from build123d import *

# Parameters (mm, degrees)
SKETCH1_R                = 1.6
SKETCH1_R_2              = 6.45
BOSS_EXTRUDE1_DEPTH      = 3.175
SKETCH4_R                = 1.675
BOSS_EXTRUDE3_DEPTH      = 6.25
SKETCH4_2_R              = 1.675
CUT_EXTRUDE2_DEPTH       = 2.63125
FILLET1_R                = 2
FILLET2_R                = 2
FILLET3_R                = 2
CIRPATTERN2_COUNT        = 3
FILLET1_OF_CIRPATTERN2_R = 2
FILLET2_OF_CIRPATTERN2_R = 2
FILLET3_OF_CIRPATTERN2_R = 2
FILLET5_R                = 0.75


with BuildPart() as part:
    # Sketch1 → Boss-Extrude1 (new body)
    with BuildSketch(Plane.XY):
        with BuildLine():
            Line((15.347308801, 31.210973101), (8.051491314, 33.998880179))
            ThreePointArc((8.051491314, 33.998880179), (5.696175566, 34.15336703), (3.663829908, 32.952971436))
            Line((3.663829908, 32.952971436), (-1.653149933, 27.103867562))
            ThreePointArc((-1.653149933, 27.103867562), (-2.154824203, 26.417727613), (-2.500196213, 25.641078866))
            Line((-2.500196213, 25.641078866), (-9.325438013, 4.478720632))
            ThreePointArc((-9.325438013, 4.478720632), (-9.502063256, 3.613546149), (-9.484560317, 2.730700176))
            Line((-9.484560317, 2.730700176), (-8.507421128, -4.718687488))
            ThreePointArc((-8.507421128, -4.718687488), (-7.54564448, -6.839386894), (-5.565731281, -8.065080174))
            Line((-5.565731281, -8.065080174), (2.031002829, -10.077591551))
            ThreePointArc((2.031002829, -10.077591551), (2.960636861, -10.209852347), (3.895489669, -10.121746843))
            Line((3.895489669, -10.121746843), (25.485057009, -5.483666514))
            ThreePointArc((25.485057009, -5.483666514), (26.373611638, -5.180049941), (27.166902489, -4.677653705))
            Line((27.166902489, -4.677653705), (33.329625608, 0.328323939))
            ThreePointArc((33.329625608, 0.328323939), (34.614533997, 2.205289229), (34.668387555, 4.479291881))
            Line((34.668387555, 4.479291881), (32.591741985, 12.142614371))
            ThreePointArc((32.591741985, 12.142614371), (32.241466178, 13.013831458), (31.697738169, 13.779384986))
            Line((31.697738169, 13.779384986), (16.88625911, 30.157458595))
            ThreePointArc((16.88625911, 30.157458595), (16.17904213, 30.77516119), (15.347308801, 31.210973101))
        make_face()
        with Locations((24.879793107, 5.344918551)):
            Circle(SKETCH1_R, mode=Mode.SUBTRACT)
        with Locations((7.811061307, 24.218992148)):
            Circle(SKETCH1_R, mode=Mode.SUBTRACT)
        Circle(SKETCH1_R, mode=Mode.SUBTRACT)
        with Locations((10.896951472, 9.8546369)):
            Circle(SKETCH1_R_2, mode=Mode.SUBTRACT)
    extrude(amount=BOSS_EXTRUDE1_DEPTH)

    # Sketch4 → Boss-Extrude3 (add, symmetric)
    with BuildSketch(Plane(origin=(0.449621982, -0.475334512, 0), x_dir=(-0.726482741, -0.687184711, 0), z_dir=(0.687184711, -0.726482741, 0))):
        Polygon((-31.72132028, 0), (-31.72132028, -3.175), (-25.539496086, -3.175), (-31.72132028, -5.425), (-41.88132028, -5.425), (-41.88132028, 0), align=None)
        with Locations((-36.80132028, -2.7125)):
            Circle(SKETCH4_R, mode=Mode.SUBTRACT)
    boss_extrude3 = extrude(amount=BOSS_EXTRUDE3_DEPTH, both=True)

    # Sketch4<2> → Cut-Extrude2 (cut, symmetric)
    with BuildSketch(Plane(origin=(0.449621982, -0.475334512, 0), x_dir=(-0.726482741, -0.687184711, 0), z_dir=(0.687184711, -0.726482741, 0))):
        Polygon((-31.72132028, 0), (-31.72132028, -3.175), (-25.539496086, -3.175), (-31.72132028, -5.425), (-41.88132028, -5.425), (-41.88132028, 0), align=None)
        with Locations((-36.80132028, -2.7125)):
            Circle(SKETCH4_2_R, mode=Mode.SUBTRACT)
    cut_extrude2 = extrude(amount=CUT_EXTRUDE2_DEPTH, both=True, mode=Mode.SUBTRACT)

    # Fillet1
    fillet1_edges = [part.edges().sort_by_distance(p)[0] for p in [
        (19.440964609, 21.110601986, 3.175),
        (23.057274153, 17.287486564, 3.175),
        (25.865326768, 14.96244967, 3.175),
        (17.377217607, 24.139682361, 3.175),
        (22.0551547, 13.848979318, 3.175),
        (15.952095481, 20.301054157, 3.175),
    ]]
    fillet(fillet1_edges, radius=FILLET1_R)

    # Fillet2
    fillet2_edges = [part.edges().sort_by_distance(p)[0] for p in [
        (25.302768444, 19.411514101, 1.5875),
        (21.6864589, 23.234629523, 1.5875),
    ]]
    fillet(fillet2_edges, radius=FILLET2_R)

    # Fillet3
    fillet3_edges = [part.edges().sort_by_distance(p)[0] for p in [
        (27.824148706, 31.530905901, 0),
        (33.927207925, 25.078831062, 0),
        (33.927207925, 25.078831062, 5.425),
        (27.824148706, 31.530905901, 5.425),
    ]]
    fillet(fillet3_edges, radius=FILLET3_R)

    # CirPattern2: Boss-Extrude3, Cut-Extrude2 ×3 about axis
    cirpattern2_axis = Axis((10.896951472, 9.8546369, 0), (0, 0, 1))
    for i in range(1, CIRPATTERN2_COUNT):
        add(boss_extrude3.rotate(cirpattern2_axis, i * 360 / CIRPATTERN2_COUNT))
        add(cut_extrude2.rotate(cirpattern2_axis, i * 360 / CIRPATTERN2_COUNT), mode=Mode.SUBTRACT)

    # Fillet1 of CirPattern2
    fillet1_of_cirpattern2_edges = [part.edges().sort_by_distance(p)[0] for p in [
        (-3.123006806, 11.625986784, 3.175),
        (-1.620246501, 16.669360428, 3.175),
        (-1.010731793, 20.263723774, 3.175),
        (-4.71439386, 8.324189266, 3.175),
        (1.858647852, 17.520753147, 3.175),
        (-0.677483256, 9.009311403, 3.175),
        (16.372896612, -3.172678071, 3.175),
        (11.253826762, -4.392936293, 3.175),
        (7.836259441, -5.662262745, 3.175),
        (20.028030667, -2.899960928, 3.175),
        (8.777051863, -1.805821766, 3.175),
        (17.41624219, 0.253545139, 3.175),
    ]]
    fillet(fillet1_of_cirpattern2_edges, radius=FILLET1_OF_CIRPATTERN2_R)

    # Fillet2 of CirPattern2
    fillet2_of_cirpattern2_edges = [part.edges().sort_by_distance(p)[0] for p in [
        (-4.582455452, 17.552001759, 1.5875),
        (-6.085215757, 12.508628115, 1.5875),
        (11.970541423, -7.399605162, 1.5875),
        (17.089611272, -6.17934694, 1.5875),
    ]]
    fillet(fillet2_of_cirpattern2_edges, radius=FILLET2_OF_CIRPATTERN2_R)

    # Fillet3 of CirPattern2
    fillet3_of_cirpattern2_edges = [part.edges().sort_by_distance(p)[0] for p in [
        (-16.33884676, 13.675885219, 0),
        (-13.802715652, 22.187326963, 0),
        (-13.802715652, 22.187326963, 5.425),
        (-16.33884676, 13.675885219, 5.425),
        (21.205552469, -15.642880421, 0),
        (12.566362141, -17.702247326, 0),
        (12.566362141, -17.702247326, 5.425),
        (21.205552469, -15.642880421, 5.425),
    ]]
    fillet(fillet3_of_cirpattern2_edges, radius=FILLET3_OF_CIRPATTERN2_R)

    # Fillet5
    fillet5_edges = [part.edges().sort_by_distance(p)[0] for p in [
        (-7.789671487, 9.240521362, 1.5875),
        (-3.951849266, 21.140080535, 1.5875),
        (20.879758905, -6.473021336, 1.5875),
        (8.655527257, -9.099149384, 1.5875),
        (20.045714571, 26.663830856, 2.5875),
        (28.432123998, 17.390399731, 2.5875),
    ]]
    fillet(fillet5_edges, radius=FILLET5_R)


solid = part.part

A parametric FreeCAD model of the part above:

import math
import FreeCAD as App
import Part
import Sketcher
Q = App.Units.Quantity


def edges_at(feature, points):
    """Names of the edges that pass closest to the given points."""
    edges = feature.Shape.Edges
    near = lambda p: min(range(len(edges)), key=lambda i: edges[i].distToShape(Part.Vertex(*p))[0])
    return sorted({f"Edge{near(p) + 1}" for p in points})


def add_polygon(sketch, points):
    """Adds a closed chain of lines whose ends are joined by coincident constraints."""
    first, n = sketch.GeometryCount, len(points)
    for a, b in zip(points, points[1:] + points[:1]):
        sketch.addGeometry(Part.LineSegment(App.Vector(*a, 0), App.Vector(*b, 0)), False)
    for i in range(n):
        sketch.addConstraint(Sketcher.Constraint("Coincident", first + i, 2, first + (i + 1) % n, 1))

doc = App.newDocument("Part")
body = doc.addObject("PartDesign::Body", "Body")

# Sketch on XY plane
sketch1 = body.newObject("Sketcher::SketchObject", "Sketch")
sketch1.AttachmentSupport = (doc.getObject("XY_Plane"), [""])
sketch1.MapMode = "FlatFace"
sketch1.addGeometry(Part.LineSegment(App.Vector(15.347309, 31.210973, 0), App.Vector(8.051491, 33.99888, 0)), False)
sketch1.addGeometry(Part.ArcOfCircle(Part.Circle(App.Vector(6.623688, 30.262388, 0), App.Vector(0, 0, 1), 4), math.radians(69.086943), math.radians(137.728388)), False)
sketch1.addGeometry(Part.LineSegment(App.Vector(3.66383, 32.952971, 0), App.Vector(-1.65315, 27.103868, 0)), False)
sketch1.addGeometry(Part.ArcOfCircle(Part.Circle(App.Vector(1.306708, 24.413284, 0), App.Vector(0, 0, 1), 4), math.radians(137.728388), math.radians(162.124554)), False)
sketch1.addGeometry(Part.LineSegment(App.Vector(-2.500196, 25.641079, 0), App.Vector(-9.325438, 4.478721, 0)), False)
sketch1.addGeometry(Part.ArcOfCircle(Part.Circle(App.Vector(-5.518534, 3.250925, 0), App.Vector(0, 0, 1), 4), math.radians(162.124554), math.radians(187.472847)), False)
sketch1.addGeometry(Part.LineSegment(App.Vector(-9.48456, 2.7307, 0), App.Vector(-8.507421, -4.718687, 0)), False)
sketch1.addGeometry(Part.ArcOfCircle(Part.Circle(App.Vector(-4.541395, -4.198462, 0), App.Vector(0, 0, 1), 4), math.radians(-172.527153), math.radians(-104.837835)), False)
sketch1.addGeometry(Part.LineSegment(App.Vector(-5.565731, -8.06508, 0), App.Vector(2.031003, -10.077592, 0)), False)
sketch1.addGeometry(Part.ArcOfCircle(Part.Circle(App.Vector(3.055339, -6.210974, 0), App.Vector(0, 0, 1), 4), math.radians(-104.837835), math.radians(-77.875446)), False)
sketch1.addGeometry(Part.LineSegment(App.Vector(3.89549, -10.121747, 0), App.Vector(25.485057, -5.483667, 0)), False)
sketch1.addGeometry(Part.ArcOfCircle(Part.Circle(App.Vector(24.644907, -1.572893, 0), App.Vector(0, 0, 1), 4), math.radians(-77.875446), math.radians(-50.913057)), False)
sketch1.addGeometry(Part.LineSegment(App.Vector(27.166902, -4.677654, 0), App.Vector(33.329626, 0.328324, 0)), False)
sketch1.addGeometry(Part.ArcOfCircle(Part.Circle(App.Vector(30.80763, 3.433084, 0), App.Vector(0, 0, 1), 4), math.radians(-50.913057), math.radians(15.162165)), False)
sketch1.addGeometry(Part.LineSegment(App.Vector(34.668388, 4.479292, 0), App.Vector(32.591742, 12.142614, 0)), False)
sketch1.addGeometry(Part.ArcOfCircle(Part.Circle(App.Vector(28.730984, 11.096407, 0), App.Vector(0, 0, 1), 4), math.radians(15.162165), math.radians(42.124554)), False)
sketch1.addGeometry(Part.LineSegment(App.Vector(31.697738, 13.779385, 0), App.Vector(16.886259, 30.157459, 0)), False)
sketch1.addGeometry(Part.ArcOfCircle(Part.Circle(App.Vector(13.919505, 27.47448, 0), App.Vector(0, 0, 1), 4), math.radians(42.124554), math.radians(69.086943)), False)
sketch1.addGeometry(Part.Circle(App.Vector(0, 0, 0), App.Vector(0, 0, 1), 1.6), False)
sketch1.addGeometry(Part.Circle(App.Vector(10.896951, 9.854637, 0), App.Vector(0, 0, 1), 6.45), False)
sketch1.addGeometry(Part.Circle(App.Vector(24.879793, 5.344919, 0), App.Vector(0, 0, 1), 1.6), False)
sketch1.addGeometry(Part.Circle(App.Vector(7.811061, 24.218992, 0), App.Vector(0, 0, 1), 1.6), False)
sketch1.addConstraint(Sketcher.Constraint("Coincident", 0, 2, 1, 1))
sketch1.addConstraint(Sketcher.Constraint("Coincident", 1, 2, 2, 1))
sketch1.addConstraint(Sketcher.Constraint("Coincident", 2, 2, 3, 1))
sketch1.addConstraint(Sketcher.Constraint("Coincident", 3, 2, 4, 1))
sketch1.addConstraint(Sketcher.Constraint("Coincident", 4, 2, 5, 1))
sketch1.addConstraint(Sketcher.Constraint("Coincident", 5, 2, 6, 1))
sketch1.addConstraint(Sketcher.Constraint("Coincident", 6, 2, 7, 1))
sketch1.addConstraint(Sketcher.Constraint("Coincident", 7, 2, 8, 1))
sketch1.addConstraint(Sketcher.Constraint("Coincident", 8, 2, 9, 1))
sketch1.addConstraint(Sketcher.Constraint("Coincident", 9, 2, 10, 1))
sketch1.addConstraint(Sketcher.Constraint("Coincident", 10, 2, 11, 1))
sketch1.addConstraint(Sketcher.Constraint("Coincident", 11, 2, 12, 1))
sketch1.addConstraint(Sketcher.Constraint("Coincident", 12, 2, 13, 1))
sketch1.addConstraint(Sketcher.Constraint("Coincident", 13, 2, 14, 1))
sketch1.addConstraint(Sketcher.Constraint("Coincident", 14, 2, 15, 1))
sketch1.addConstraint(Sketcher.Constraint("Coincident", 15, 2, 16, 1))
sketch1.addConstraint(Sketcher.Constraint("Coincident", 16, 2, 17, 1))
sketch1.addConstraint(Sketcher.Constraint("Coincident", 17, 2, 0, 1))
sketch1.addConstraint(Sketcher.Constraint("Coincident", 18, 3, -1, 1))
sketch1.addConstraint(Sketcher.Constraint("Radius", 1, Q("4 mm")))
sketch1.addConstraint(Sketcher.Constraint("Radius", 3, Q("4 mm")))
sketch1.addConstraint(Sketcher.Constraint("Radius", 5, Q("4 mm")))
sketch1.addConstraint(Sketcher.Constraint("Radius", 7, Q("4 mm")))
sketch1.addConstraint(Sketcher.Constraint("Radius", 9, Q("4 mm")))
sketch1.addConstraint(Sketcher.Constraint("Radius", 11, Q("4 mm")))
sketch1.addConstraint(Sketcher.Constraint("Radius", 13, Q("4 mm")))
sketch1.addConstraint(Sketcher.Constraint("Radius", 15, Q("4 mm")))
sketch1.addConstraint(Sketcher.Constraint("Radius", 17, Q("4 mm")))
sketch1.addConstraint(Sketcher.Constraint("Diameter", 18, Q("3.2 mm")))
sketch1.addConstraint(Sketcher.Constraint("Diameter", 19, Q("12.9 mm")))
sketch1.addConstraint(Sketcher.Constraint("Diameter", 20, Q("3.2 mm")))
sketch1.addConstraint(Sketcher.Constraint("Diameter", 21, Q("3.2 mm")))
sketch1.addConstraint(Sketcher.Constraint("Distance", 6, Q("7.5132 mm")))
sketch1.addConstraint(Sketcher.Constraint("DistanceY", -1, 1, 5, 2, Q("2.7307 mm")))
sketch1.addConstraint(Sketcher.Constraint("DistanceY", 9, 3, 5, 3, Q("9.461899 mm")))
sketch1.addConstraint(Sketcher.Constraint("DistanceX", 7, 3, 11, 3, Q("29.186301 mm")))
sketch1.addConstraint(Sketcher.Constraint("DistanceX", 3, 3, 11, 3, Q("23.338199 mm")))
sketch1.addConstraint(Sketcher.Constraint("DistanceY", 13, 3, 3, 3, Q("20.980199 mm")))
sketch1.addConstraint(Sketcher.Constraint("DistanceY", 11, 3, 15, 3, Q("12.6693 mm")))
sketch1.addConstraint(Sketcher.Constraint("DistanceX", 17, 3, 11, 3, Q("10.725402 mm")))
sketch1.addConstraint(Sketcher.Constraint("DistanceY", 17, 3, 0, 2, Q("6.5244 mm")))
sketch1.addConstraint(Sketcher.Constraint("DistanceX", 5, 2, 9, 3, Q("12.5399 mm")))
sketch1.addConstraint(Sketcher.Constraint("DistanceY", 13, 3, 15, 2, Q("10.346301 mm")))
sketch1.addConstraint(Sketcher.Constraint("Distance", 8, Q("7.858789 mm")))
sketch1.addConstraint(Sketcher.Constraint("Distance", 12, Q("7.939708 mm")))
sketch1.addConstraint(Sketcher.Constraint("Distance", 14, Q("7.939708 mm")))
sketch1.addConstraint(Sketcher.Constraint("DistanceX", -1, 1, 9, 3, Q("3.055339 mm")))
sketch1.addConstraint(Sketcher.Constraint("DistanceX", -1, 1, 13, 3, Q("30.80763 mm")))
sketch1.addConstraint(Sketcher.Constraint("DistanceY", -1, 1, 17, 3, Q("27.47448 mm")))
sketch1.addConstraint(Sketcher.Constraint("DistanceX", -1, 1, 19, 3, Q("10.896951 mm")))
sketch1.addConstraint(Sketcher.Constraint("DistanceY", -1, 1, 20, 3, Q("5.344919 mm")))
sketch1.addConstraint(Sketcher.Constraint("DistanceX", -1, 1, 21, 3, Q("7.811061 mm")))
sketch1.addConstraint(Sketcher.Constraint("DistanceX", -1, 1, 0, 2, Q("8.051491 mm")))
sketch1.addConstraint(Sketcher.Constraint("DistanceX", -1, 1, 1, 2, Q("3.66383 mm")))
sketch1.addConstraint(Sketcher.Constraint("DistanceY", -1, 1, 1, 2, Q("32.952971 mm")))
sketch1.addConstraint(Sketcher.Constraint("DistanceX", 2, 2, -1, 1, Q("1.65315 mm")))
sketch1.addConstraint(Sketcher.Constraint("DistanceY", -1, 1, 3, 2, Q("25.641079 mm")))
sketch1.addConstraint(Sketcher.Constraint("DistanceX", 4, 2, -1, 1, Q("9.325438 mm")))
sketch1.addConstraint(Sketcher.Constraint("DistanceY", -1, 1, 4, 2, Q("4.478721 mm")))
sketch1.addConstraint(Sketcher.Constraint("DistanceX", 6, 2, -1, 1, Q("8.507421 mm")))
sketch1.addConstraint(Sketcher.Constraint("DistanceX", 7, 2, -1, 1, Q("5.565731 mm")))
sketch1.addConstraint(Sketcher.Constraint("DistanceY", 7, 2, -1, 1, Q("8.06508 mm")))
sketch1.addConstraint(Sketcher.Constraint("DistanceX", -1, 1, 9, 2, Q("3.89549 mm")))
sketch1.addConstraint(Sketcher.Constraint("DistanceY", -1, 1, 13, 2, Q("4.479292 mm")))
sketch1.addConstraint(Sketcher.Constraint("DistanceX", -1, 1, 14, 2, Q("32.591742 mm")))
sketch1.addConstraint(Sketcher.Constraint("DistanceX", -1, 1, 15, 2, Q("31.697738 mm")))
sketch1.addConstraint(Sketcher.Constraint("DistanceX", -1, 1, 16, 2, Q("16.886259 mm")))
sketch1.addConstraint(Sketcher.Constraint("DistanceX", -1, 1, 17, 2, Q("15.347309 mm")))
sketch1.addConstraint(Sketcher.Constraint("DistanceY", 5, 3, 3, 3, Q("21.162358 mm")))
sketch1.addConstraint(Sketcher.Constraint("DistanceY", 5, 3, 19, 3, Q("6.603711 mm")))
sketch1.addConstraint(Sketcher.Constraint("DistanceX", 20, 3, 15, 3, Q("3.851191 mm")))
sketch1.addConstraint(Sketcher.Constraint("DistanceY", 21, 3, 3, 3, Q("0.194292 mm")))
sketch1.addConstraint(Sketcher.Constraint("DistanceX", 11, 3, 10, 2, Q("0.84015 mm")))
sketch1.addConstraint(Sketcher.Constraint("DistanceY", 11, 2, 11, 3, Q("3.10476 mm")))
pad1 = body.newObject("PartDesign::Pad", "Pad")
pad1.Profile = sketch1
pad1.Length = 3.175

# Sketch on an angled plane
sketch2 = body.newObject("Sketcher::SketchObject", "Sketch001")
sketch2.Placement = App.Placement(App.Vector(0.449622, -0.475335, 0), App.Rotation(App.Vector(-0.726482741, -0.687184711, 0), App.Vector(0, 0, -1), App.Vector(0.687184711, -0.726482741, 0), "ZXY"))
add_polygon(sketch2, [(-31.7, -3.2), (-31.7, 0), (-41.9, 0), (-41.9, -5.4), (-31.7, -5.4), (-25.5, -3.2)])  # lines 0-5
sketch2.addGeometry(Part.Circle(App.Vector(-36.8, -2.7, 0), App.Vector(0, 0, 1), 1.7), False)  # 6
sketch2.addConstraint(Sketcher.Constraint("Vertical", 0))
sketch2.addConstraint(Sketcher.Constraint("Horizontal", 1))
sketch2.addConstraint(Sketcher.Constraint("Vertical", 2))
sketch2.addConstraint(Sketcher.Constraint("Horizontal", 3))
sketch2.addConstraint(Sketcher.Constraint("Horizontal", 5))
sketch2.addConstraint(Sketcher.Constraint("PointOnObject", 0, 2, -1))
sketch2.addConstraint(Sketcher.Constraint("Vertical", 0, 2, 3, 2))
sketch2.addConstraint(Sketcher.Constraint("Diameter", 6, Q("3.35 mm")))
sketch2.addConstraint(Sketcher.Constraint("Angle", 4, Q("20 deg")))
sketch2.addConstraint(Sketcher.Constraint("DistanceX", 1, 2, 1, 1, Q("10.16 mm")))
sketch2.addConstraint(Sketcher.Constraint("DistanceY", 0, 1, 0, 2, Q("3.175 mm")))
sketch2.addConstraint(Sketcher.Constraint("DistanceY", 2, 2, 2, 1, Q("5.425 mm")))
sketch2.addConstraint(Sketcher.Constraint("DistanceX", 6, 3, 0, 2, Q("5.08 mm")))
sketch2.addConstraint(Sketcher.Constraint("DistanceY", 6, 3, -1, 1, Q("2.7125 mm")))
sketch2.addConstraint(Sketcher.Constraint("DistanceX", 6, 3, -1, 1, Q("36.80132 mm")))
pad2 = body.newObject("PartDesign::Pad", "Pad001")
pad2.Profile = sketch2
pad2.Length = 12.5
pad2.Midplane = True

# Sketch on an angled plane
sketch3 = body.newObject("Sketcher::SketchObject", "Sketch002")
sketch3.Placement = App.Placement(App.Vector(0.449622, -0.475335, 0), App.Rotation(App.Vector(-0.726482741, -0.687184711, 0), App.Vector(0, 0, -1), App.Vector(0.687184711, -0.726482741, 0), "ZXY"))
add_polygon(sketch3, [(-31.7, -3.2), (-31.7, 0), (-41.9, 0), (-41.9, -5.4), (-31.7, -5.4), (-25.5, -3.2)])  # lines 0-5
sketch3.addGeometry(Part.Circle(App.Vector(-36.8, -2.7, 0), App.Vector(0, 0, 1), 1.7), False)  # 6
sketch3.addConstraint(Sketcher.Constraint("Vertical", 0))
sketch3.addConstraint(Sketcher.Constraint("Horizontal", 1))
sketch3.addConstraint(Sketcher.Constraint("Vertical", 2))
sketch3.addConstraint(Sketcher.Constraint("Horizontal", 3))
sketch3.addConstraint(Sketcher.Constraint("Horizontal", 5))
sketch3.addConstraint(Sketcher.Constraint("PointOnObject", 0, 2, -1))
sketch3.addConstraint(Sketcher.Constraint("Vertical", 0, 2, 3, 2))
sketch3.addConstraint(Sketcher.Constraint("Diameter", 6, Q("3.35 mm")))
sketch3.addConstraint(Sketcher.Constraint("Angle", 4, Q("20 deg")))
sketch3.addConstraint(Sketcher.Constraint("DistanceX", 1, 2, 1, 1, Q("10.16 mm")))
sketch3.addConstraint(Sketcher.Constraint("DistanceY", 0, 1, 0, 2, Q("3.175 mm")))
sketch3.addConstraint(Sketcher.Constraint("DistanceY", 2, 2, 2, 1, Q("5.425 mm")))
sketch3.addConstraint(Sketcher.Constraint("DistanceX", 6, 3, 0, 2, Q("5.08 mm")))
sketch3.addConstraint(Sketcher.Constraint("DistanceY", 6, 3, -1, 1, Q("2.7125 mm")))
sketch3.addConstraint(Sketcher.Constraint("DistanceX", 6, 3, -1, 1, Q("36.80132 mm")))
pocket1 = body.newObject("PartDesign::Pocket", "Pocket")
pocket1.Profile = sketch3
pocket1.Length = 5.2625
pocket1.Midplane = True
doc.recompute()

fillet = body.newObject("PartDesign::Fillet", "Fillet")
fillet.Base = (pocket1, edges_at(pocket1, [
    (19.441, 21.111, 3.175),
    (23.057, 17.287, 3.175),
    (25.865, 14.962, 3.175),
    (17.377, 24.14, 3.175),
    (22.055, 13.849, 3.175),
    (15.952, 20.301, 3.175),
]))
fillet.Radius = 2
doc.recompute()

fillet2 = body.newObject("PartDesign::Fillet", "Fillet001")
fillet2.Base = (fillet, edges_at(fillet, [(25.303, 19.412, 2.587), (21.686, 23.235, 2.587)]))
fillet2.Radius = 2
doc.recompute()

fillet3 = body.newObject("PartDesign::Fillet", "Fillet002")
fillet3.Base = (fillet2, edges_at(fillet2, [
    (27.824, 31.531, 0),
    (33.927, 25.079, 0),
    (33.927, 25.079, 5.425),
    (27.824, 31.531, 5.425),
]))
fillet3.Radius = 2
doc.recompute()

datumline = body.newObject("PartDesign::Line", "DatumLine")
datumline.Placement = App.Placement(App.Vector(10.896951, 9.854637, 0), App.Rotation(App.Vector(0, 0, 1), App.Vector(0, 0, 1)))
polarpattern = body.newObject("PartDesign::PolarPattern", "PolarPattern")
polarpattern.Originals = [pad2, pocket1]
polarpattern.Axis = (datumline, [""])
polarpattern.Angle = 360
polarpattern.Occurrences = 3
body.Tip = polarpattern
doc.recompute()

fillet4 = body.newObject("PartDesign::Fillet", "Fillet003")
fillet4.Base = (polarpattern, edges_at(polarpattern, [
    (-3.123, 11.626, 3.175),
    (-1.62, 16.669, 3.175),
    (-0.788, 20.197, 3.175),
    (-4.492, 8.258, 3.175),
    (1.859, 17.521, 3.175),
    (-0.677, 9.009, 3.175),
    (16.373, -3.173, 3.175),
    (11.254, -4.393, 3.175),
    (7.836, -5.662, 3.175),
    (20.028, -2.9, 3.175),
    (8.777, -1.806, 3.175),
    (17.416, 0.254, 3.175),
]))
fillet4.Radius = 2
doc.recompute()

fillet5 = body.newObject("PartDesign::Fillet", "Fillet004")
fillet5.Base = (fillet4, edges_at(fillet4, [
    (-4.582, 17.552, 2.587),
    (-6.085, 12.509, 2.587),
    (11.971, -7.4, 2.587),
    (17.09, -6.179, 2.587),
]))
fillet5.Radius = 2
doc.recompute()

fillet6 = body.newObject("PartDesign::Fillet", "Fillet005")
fillet6.Base = (fillet5, edges_at(fillet5, [
    (-16.339, 13.676, 0),
    (-13.803, 22.187, 0),
    (-13.803, 22.187, 5.425),
    (-16.339, 13.676, 5.425),
    (21.206, -15.643, 0),
    (12.566, -17.702, 0),
    (12.566, -17.702, 5.425),
    (21.206, -15.643, 5.425),
]))
fillet6.Radius = 2
doc.recompute()

fillet7 = body.newObject("PartDesign::Fillet", "Fillet006")
fillet7.Base = (fillet6, edges_at(fillet6, [
    (-7.79, 9.241, 2.587),
    (-3.952, 21.14, 2.587),
    (20.88, -6.473, 2.587),
    (8.656, -9.099, 2.587),
    (20.046, 26.664, 2.587),
    (28.432, 17.39, 2.587),
]))
fillet7.Radius = 0.75

doc.recompute()
